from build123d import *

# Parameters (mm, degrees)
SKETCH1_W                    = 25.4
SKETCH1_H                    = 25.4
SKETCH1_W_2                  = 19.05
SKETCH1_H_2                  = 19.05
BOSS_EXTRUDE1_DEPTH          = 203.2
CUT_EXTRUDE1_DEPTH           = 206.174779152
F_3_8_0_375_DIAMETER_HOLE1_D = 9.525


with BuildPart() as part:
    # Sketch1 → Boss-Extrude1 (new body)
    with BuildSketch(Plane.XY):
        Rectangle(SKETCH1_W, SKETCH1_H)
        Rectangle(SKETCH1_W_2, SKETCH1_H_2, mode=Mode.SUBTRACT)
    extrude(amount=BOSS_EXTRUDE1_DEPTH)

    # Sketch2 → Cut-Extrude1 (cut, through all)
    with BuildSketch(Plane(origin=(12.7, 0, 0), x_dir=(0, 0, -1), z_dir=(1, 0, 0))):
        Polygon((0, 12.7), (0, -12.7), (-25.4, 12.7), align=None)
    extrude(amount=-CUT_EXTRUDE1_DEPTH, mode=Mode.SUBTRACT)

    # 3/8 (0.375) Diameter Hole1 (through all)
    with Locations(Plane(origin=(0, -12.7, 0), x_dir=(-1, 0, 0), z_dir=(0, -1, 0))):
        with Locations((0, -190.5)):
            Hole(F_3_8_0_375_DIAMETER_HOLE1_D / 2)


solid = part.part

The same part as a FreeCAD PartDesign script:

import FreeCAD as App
import Part
import Sketcher

V = App.Vector
Q = App.Units.Quantity


def add_polygon(sketch, points):
    """Adds a closed chain of lines whose ends are joined by coincident constraints."""
    first, n = sketch.GeometryCount, len(points)
    for a, b in zip(points, points[1:] + points[:1]):
        sketch.addGeometry(Part.LineSegment(App.Vector(*a, 0), App.Vector(*b, 0)), False)
    for i in range(n):
        sketch.addConstraint(Sketcher.Constraint("Coincident", first + i, 2, first + (i + 1) % n, 1))

doc = App.newDocument("Part")
body = doc.addObject("PartDesign::Body", "Body")

# Sketch on XY plane
sketch1 = doc.addObject("Sketcher::SketchObject", "Sketch")
body.addObject(sketch1)
sketch1.AttachmentSupport = (doc.XY_Plane, [""])
sketch1.MapMode = "FlatFace"
add_polygon(sketch1, [(-12.7, 12.7), (-12.7, -12.7), (12.7, -12.7), (12.7, 12.7)])  # lines 0-3
add_polygon(sketch1, [(9.525, -9.525), (-9.525, -9.525), (-9.525, 9.525), (9.525, 9.525)])  # lines 4-7
sketch1.addConstraint([
    Sketcher.Constraint("Vertical", 0),
    Sketcher.Constraint("Horizontal", 1),
    Sketcher.Constraint("Vertical", 2),
    Sketcher.Constraint("Horizontal", 3),
    Sketcher.Constraint("Horizontal", 4),
    Sketcher.Constraint("Vertical", 5),
    Sketcher.Constraint("Horizontal", 6),
    Sketcher.Constraint("Vertical", 7),
    Sketcher.Constraint("Symmetric", 0, 2, 2, 2, -1, 1),
    Sketcher.Constraint("Symmetric", 4, 2, 6, 2, -1, 1),
    Sketcher.Constraint("Equal", 3, 0),
    Sketcher.Constraint("Equal", 6, 5),
    Sketcher.Constraint("DistanceX", 1, 1, 1, 2, Q("1 in")),
    Sketcher.Constraint("DistanceX", 4, 2, 4, 1, Q("0.75 in")),
])
pad1 = doc.addObject("PartDesign::Pad", "Pad")
body.addObject(pad1)
pad1.Profile = sketch1
pad1.Length = Q("8 in")

# Sketch on YZ plane
sketch2 = doc.addObject("Sketcher::SketchObject", "Sketch001")
body.addObject(sketch2)
sketch2.AttachmentSupport = (doc.YZ_Plane, [""])
sketch2.MapMode = "FlatFace"
sketch2.AttachmentOffset = App.Placement(V(0, 0, 0.5 * 25.4), App.Rotation())
add_polygon(sketch2, [(-12.7, 0), (12.7, 0), (12.7, 25.4)])  # lines 0-2
sketch2.addConstraint([
    Sketcher.Constraint("Horizontal", 0),
    Sketcher.Constraint("Vertical", 1),
    Sketcher.Constraint("Symmetric", 0, 2, 2, 2, -1, 1),
    Sketcher.Constraint("Equal", 0, 1),
    Sketcher.Constraint("DistanceX", 0, 1, 0, 2, Q("1 in")),
])
pocket1 = doc.addObject("PartDesign::Pocket", "Pocket")
body.addObject(pocket1)
pocket1.Profile = sketch2
pocket1.Type = "ThroughAll"

# Sketch on XZ plane
sketch3 = doc.addObject("Sketcher::SketchObject", "Sketch002")
body.addObject(sketch3)
sketch3.AttachmentSupport = (doc.XZ_Plane, [""])
sketch3.MapMode = "FlatFace"
sketch3.AttachmentOffset = App.Placement(V(0, 0, 0.5 * 25.4), App.Rotation())
sketch3.addGeometry(Part.Circle(V(0, 190.5, 0), V(0, 0, 1), 4.7625), False)
sketch3.addConstraint([
    Sketcher.Constraint("PointOnObject", 0, 3, -2),
    Sketcher.Constraint("Diameter", 0, Q("0.375 in")),
    Sketcher.Constraint("DistanceY", -1, 1, 0, 3, Q("7.5 in")),
])
doc.recompute()
hole = doc.addObject("PartDesign::Hole", "Hole")
body.addObject(hole)
hole.Profile = sketch3
hole.ThreadType = "None"
hole.Diameter = Q("0.375 in")
hole.DepthType = "ThroughAll"

doc.recompute()
